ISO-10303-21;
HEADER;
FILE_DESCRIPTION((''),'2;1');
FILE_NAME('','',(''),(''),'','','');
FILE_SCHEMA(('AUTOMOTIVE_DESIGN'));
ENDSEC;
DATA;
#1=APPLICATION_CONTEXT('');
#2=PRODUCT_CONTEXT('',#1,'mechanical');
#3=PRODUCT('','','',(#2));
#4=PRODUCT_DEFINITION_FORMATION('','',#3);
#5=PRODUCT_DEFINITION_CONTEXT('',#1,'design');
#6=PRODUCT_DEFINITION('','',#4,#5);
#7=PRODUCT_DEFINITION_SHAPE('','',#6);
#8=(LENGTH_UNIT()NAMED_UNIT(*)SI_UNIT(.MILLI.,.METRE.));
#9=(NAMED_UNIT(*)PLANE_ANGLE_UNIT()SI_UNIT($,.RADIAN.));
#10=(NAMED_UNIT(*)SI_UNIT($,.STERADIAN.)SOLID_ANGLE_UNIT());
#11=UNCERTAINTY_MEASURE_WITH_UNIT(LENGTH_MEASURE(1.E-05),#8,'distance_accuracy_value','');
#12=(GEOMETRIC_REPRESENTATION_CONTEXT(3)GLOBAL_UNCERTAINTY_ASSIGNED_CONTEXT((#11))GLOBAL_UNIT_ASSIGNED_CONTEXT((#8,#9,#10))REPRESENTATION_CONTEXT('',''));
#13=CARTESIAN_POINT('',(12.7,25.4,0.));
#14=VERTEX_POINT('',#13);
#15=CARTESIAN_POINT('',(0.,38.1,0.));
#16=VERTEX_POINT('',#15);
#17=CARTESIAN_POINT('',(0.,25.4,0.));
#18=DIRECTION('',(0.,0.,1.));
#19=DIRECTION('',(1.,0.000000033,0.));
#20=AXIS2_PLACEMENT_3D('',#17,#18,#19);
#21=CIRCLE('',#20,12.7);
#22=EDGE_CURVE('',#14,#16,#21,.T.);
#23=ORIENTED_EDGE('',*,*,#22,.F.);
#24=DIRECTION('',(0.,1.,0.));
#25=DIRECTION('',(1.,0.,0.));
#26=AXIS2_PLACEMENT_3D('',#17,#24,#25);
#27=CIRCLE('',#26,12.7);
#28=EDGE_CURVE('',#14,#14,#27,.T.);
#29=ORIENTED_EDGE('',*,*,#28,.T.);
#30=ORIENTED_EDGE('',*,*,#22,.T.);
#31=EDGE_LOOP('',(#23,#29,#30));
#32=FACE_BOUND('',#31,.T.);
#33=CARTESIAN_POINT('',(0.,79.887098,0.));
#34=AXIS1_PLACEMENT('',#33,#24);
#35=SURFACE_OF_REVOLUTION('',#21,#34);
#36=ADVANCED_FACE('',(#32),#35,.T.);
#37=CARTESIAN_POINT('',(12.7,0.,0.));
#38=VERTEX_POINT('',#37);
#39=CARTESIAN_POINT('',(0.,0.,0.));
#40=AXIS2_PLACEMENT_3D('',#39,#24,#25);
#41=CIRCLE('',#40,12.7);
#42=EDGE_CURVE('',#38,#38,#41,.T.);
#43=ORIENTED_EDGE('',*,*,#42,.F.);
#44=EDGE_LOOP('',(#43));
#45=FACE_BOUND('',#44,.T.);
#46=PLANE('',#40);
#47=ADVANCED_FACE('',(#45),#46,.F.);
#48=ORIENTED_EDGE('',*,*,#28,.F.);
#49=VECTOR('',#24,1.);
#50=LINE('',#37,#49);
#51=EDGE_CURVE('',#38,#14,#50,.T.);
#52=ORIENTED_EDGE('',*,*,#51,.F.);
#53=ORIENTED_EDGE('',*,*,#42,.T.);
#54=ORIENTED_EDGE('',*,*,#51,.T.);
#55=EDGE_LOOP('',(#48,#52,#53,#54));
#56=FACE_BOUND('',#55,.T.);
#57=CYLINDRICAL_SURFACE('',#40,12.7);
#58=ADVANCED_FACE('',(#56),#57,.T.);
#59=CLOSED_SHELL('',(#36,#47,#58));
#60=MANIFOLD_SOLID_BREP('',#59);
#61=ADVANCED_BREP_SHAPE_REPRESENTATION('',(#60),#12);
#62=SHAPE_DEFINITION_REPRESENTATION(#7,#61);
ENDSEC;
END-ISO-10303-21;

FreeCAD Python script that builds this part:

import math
import FreeCAD as App
import Part
import Sketcher
from FreeCAD import Vector
Q = App.Units.Quantity

doc = App.newDocument("Part")
body = doc.addObject("PartDesign::Body", "Body")

# Sketch on XY plane
sketch1 = body.newObject("Sketcher::SketchObject", "Sketch")
sketch1.AttachmentSupport = (doc.getObject("XY_Plane"), [""])
sketch1.MapMode = "FlatFace"
sketch1.addGeometry([
    Part.LineSegment(Vector(0, 38.1, 0), Vector(0, 0, 0)),
    Part.LineSegment(Vector(0, 0, 0), Vector(12.7, 0, 0)),
    Part.LineSegment(Vector(12.7, 0, 0), Vector(12.7, 25.4, 0)),
    Part.ArcOfCircle(Part.Circle(Vector(0, 25.4, 0), Vector(0, 0, 1), 12.7), math.radians(0.000002), math.radians(89.999998)),
], False)
sketch1.addConstraint([
    Sketcher.Constraint("Coincident", 0, 2, 1, 1),
    Sketcher.Constraint("Coincident", 1, 2, 2, 1),
    Sketcher.Constraint("Tangent", 2, 2, 3, 1),
    Sketcher.Constraint("Coincident", 3, 2, 0, 1),
    Sketcher.Constraint("Vertical", 0),
    Sketcher.Constraint("Horizontal", 1),
    Sketcher.Constraint("Vertical", 2),
    Sketcher.Constraint("Coincident", 0, 2, -1, 1),
    Sketcher.Constraint("PointOnObject", 3, 3, -2),
    Sketcher.Constraint("Radius", 3, Q("0.5 in")),
    Sketcher.Constraint("DistanceY", 2, 1, 2, 2, Q("1 in")),
])
revolution = body.newObject("PartDesign::Revolution", "Revolution")
revolution.Profile = sketch1
revolution.ReferenceAxis = (sketch1, ["V_Axis"])
revolution.Angle = 360

doc.recompute()
